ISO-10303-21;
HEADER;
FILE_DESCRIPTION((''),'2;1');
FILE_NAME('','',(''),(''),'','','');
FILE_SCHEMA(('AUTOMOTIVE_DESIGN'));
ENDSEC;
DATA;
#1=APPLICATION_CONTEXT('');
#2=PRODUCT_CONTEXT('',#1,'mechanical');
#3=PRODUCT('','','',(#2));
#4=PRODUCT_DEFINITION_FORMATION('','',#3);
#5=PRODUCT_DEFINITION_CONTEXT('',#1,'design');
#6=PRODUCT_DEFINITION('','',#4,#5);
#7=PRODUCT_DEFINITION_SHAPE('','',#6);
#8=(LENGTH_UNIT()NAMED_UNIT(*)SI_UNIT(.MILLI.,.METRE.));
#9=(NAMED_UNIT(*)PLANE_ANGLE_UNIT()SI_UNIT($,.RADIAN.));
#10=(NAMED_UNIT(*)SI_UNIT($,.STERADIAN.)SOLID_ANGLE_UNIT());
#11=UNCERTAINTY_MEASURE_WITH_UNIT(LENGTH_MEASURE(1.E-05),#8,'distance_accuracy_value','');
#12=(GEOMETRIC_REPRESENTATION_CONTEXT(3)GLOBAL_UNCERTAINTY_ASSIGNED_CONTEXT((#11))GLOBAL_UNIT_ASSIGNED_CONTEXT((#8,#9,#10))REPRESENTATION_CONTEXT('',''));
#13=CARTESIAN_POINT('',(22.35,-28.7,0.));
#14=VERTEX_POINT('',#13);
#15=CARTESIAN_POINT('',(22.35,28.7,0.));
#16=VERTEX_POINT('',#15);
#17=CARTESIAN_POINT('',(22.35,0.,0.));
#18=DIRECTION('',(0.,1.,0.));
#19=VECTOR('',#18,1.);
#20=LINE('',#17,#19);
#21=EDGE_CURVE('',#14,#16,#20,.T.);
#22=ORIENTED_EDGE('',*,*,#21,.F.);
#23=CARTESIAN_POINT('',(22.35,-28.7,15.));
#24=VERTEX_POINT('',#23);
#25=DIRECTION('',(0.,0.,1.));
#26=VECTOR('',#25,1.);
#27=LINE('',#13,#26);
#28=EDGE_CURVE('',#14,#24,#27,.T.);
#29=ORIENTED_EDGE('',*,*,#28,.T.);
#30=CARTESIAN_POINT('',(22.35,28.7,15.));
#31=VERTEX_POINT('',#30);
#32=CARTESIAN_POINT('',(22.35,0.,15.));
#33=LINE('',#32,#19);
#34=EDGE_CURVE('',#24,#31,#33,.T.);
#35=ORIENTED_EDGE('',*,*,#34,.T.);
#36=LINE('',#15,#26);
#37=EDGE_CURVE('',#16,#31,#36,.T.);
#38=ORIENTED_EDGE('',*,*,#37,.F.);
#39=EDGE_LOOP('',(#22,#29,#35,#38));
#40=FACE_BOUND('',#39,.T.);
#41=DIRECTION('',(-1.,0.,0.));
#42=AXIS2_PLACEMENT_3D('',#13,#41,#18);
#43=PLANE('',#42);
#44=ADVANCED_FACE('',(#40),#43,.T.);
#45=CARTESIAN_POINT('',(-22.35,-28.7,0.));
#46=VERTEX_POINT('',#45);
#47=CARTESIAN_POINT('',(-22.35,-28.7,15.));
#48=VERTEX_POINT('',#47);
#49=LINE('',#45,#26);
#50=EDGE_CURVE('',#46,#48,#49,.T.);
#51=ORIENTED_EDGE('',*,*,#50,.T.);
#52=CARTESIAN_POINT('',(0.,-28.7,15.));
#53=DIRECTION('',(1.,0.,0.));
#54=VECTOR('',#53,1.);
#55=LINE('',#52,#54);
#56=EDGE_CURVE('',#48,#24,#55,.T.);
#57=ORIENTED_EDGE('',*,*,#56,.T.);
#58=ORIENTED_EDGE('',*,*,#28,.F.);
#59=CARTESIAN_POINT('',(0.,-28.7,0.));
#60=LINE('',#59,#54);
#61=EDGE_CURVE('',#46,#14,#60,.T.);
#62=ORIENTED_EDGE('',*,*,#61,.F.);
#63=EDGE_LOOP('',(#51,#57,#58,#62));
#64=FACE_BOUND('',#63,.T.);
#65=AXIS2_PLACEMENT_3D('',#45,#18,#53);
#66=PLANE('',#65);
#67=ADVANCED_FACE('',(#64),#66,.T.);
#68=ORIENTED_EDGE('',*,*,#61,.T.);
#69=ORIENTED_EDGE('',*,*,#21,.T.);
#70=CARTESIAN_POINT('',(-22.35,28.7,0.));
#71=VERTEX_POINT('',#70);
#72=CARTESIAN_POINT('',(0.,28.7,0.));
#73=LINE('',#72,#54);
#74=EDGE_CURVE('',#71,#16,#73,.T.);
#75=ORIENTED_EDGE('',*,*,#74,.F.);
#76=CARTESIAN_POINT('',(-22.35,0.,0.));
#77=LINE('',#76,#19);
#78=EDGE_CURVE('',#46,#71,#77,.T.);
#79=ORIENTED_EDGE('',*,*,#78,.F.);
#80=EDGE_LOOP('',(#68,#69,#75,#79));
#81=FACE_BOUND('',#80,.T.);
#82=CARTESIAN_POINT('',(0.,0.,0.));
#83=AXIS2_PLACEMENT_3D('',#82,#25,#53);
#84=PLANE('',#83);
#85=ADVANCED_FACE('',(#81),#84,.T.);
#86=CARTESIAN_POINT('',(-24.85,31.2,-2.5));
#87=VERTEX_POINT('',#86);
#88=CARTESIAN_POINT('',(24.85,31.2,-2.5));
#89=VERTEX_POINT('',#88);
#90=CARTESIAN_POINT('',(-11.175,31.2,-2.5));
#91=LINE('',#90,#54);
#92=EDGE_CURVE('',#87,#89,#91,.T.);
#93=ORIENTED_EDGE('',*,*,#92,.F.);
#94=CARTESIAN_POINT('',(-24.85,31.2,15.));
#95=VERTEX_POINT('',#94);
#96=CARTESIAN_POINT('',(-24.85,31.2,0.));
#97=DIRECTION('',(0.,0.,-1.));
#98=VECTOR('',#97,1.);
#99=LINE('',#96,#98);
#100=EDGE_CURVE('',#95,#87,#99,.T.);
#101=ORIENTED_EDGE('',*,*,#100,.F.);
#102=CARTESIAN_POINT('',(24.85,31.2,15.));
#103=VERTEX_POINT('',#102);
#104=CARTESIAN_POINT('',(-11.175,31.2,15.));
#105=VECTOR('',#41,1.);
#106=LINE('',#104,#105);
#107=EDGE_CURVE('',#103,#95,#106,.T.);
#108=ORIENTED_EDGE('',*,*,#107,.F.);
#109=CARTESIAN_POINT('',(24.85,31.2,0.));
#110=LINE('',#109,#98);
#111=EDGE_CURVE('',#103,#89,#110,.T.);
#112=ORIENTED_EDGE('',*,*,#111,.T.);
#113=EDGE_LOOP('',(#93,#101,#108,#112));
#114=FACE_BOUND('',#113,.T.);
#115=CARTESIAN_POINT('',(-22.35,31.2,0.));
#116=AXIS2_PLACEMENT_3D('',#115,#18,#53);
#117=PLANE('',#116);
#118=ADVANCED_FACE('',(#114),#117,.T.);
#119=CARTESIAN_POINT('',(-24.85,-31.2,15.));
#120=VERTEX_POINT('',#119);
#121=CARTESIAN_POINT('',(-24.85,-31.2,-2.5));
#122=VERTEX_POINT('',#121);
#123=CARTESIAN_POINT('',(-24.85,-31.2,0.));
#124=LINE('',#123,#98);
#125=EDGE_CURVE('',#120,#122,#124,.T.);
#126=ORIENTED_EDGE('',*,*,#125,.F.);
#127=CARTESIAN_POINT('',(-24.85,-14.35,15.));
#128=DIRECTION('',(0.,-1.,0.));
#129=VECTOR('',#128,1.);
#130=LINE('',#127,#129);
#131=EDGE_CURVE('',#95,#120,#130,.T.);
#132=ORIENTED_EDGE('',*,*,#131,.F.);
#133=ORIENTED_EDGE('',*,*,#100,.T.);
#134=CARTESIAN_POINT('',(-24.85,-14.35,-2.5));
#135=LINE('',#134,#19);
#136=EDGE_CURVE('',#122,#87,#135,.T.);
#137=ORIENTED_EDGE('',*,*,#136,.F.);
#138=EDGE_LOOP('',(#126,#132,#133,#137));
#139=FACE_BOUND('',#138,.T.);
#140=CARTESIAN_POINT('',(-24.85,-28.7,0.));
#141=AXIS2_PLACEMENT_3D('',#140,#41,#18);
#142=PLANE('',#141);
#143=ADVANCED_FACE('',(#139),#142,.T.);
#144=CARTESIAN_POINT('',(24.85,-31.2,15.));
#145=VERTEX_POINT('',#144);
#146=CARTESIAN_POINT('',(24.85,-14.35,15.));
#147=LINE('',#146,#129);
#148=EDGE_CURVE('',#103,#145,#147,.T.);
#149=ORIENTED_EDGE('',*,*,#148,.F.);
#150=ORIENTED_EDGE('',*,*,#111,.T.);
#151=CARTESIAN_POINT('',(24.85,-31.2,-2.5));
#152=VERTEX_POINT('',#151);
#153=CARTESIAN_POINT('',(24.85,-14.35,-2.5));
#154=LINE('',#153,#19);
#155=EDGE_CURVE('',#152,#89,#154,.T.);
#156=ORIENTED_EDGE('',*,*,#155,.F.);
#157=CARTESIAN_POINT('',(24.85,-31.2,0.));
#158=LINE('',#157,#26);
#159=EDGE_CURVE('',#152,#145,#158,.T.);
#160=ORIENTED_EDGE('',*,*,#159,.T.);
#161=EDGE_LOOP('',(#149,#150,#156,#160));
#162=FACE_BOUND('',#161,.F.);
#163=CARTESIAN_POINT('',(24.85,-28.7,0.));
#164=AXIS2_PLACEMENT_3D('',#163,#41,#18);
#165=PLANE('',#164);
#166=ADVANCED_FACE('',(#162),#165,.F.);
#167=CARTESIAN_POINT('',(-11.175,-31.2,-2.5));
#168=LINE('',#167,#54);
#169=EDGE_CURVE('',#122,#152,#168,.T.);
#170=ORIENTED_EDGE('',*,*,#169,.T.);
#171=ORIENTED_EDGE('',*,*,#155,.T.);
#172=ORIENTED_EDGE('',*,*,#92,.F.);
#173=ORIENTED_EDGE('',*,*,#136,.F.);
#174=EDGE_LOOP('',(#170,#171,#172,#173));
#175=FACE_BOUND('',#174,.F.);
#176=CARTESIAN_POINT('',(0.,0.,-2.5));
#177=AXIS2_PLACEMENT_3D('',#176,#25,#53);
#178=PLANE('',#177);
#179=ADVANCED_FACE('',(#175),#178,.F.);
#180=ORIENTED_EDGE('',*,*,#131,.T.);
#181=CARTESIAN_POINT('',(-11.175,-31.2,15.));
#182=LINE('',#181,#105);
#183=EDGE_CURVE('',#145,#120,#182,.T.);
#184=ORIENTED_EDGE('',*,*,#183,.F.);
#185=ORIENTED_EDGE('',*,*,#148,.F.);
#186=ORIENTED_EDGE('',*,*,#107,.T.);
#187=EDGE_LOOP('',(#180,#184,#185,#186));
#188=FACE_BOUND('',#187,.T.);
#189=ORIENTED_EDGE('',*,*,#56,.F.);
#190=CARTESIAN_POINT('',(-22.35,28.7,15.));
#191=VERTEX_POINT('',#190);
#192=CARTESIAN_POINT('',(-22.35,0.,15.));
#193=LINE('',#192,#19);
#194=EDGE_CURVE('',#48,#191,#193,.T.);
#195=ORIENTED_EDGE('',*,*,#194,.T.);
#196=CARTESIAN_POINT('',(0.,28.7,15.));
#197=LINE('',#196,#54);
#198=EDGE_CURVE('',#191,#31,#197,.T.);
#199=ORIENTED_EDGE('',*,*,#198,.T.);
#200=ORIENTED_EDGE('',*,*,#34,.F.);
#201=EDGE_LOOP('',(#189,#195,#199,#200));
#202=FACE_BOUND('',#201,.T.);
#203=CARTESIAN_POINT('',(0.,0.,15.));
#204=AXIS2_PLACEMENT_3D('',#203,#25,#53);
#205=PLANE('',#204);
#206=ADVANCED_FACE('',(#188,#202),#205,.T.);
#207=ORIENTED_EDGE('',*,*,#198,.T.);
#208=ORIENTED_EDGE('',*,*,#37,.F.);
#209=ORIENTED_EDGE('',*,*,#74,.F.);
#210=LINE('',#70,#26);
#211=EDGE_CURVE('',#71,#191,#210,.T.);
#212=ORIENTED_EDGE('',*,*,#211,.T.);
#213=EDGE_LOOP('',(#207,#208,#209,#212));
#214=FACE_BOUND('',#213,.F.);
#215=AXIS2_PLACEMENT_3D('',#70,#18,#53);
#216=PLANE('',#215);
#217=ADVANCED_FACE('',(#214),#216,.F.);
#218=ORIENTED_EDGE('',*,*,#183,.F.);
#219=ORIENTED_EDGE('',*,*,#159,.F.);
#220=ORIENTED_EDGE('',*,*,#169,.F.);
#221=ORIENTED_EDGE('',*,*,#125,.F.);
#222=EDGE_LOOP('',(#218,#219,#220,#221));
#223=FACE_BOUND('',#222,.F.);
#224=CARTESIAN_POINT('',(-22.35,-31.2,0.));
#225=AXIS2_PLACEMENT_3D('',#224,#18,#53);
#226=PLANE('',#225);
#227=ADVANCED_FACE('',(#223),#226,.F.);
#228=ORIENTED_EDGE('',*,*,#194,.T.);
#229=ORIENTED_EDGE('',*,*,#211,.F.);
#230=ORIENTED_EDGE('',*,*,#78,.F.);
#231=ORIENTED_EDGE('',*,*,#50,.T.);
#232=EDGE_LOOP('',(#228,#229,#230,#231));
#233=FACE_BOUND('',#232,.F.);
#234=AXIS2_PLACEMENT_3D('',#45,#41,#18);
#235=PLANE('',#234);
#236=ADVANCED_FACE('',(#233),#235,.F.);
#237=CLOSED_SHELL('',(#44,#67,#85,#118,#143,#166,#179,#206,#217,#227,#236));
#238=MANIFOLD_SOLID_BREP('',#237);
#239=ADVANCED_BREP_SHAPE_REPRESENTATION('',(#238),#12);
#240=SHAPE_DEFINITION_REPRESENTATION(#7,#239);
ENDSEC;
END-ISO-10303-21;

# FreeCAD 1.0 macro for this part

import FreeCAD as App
import Part
import Sketcher

V = App.Vector


def faces_at(feature, points):
    """Names of the faces that lie closest to the given points."""
    faces = feature.Shape.Faces
    near = lambda p: min(range(len(faces)), key=lambda i: faces[i].distToShape(Part.Vertex(*p))[0])
    return sorted({f"Face{near(p) + 1}" for p in points})


def add_polygon(sketch, points):
    """Adds a closed chain of lines whose ends are joined by coincident constraints."""
    first, n = sketch.GeometryCount, len(points)
    for a, b in zip(points, points[1:] + points[:1]):
        sketch.addGeometry(Part.LineSegment(App.Vector(*a, 0), App.Vector(*b, 0)), False)
    for i in range(n):
        sketch.addConstraint(Sketcher.Constraint("Coincident", first + i, 2, first + (i + 1) % n, 1))

doc = App.newDocument("Part")
body = doc.addObject("PartDesign::Body", "Body")

# Sketch on XY plane
sketch1 = doc.addObject("Sketcher::SketchObject", "Sketch")
body.addObject(sketch1)
sketch1.AttachmentSupport = (doc.XY_Plane, [""])
sketch1.MapMode = "FlatFace"
add_polygon(sketch1, [(-22.35, 28.7), (-22.35, -28.7), (22.35, -28.7), (22.35, 28.7)])  # lines 0-3
sketch1.addConstraint([
    Sketcher.Constraint("Vertical", 0),
    Sketcher.Constraint("Horizontal", 1),
    Sketcher.Constraint("Vertical", 2),
    Sketcher.Constraint("Horizontal", 3),
    Sketcher.Constraint("Symmetric", 0, 2, 2, 2, -1, 1),
    Sketcher.Constraint("DistanceX", 1, 1, 1, 2, 44.7),
    Sketcher.Constraint("DistanceY", 0, 2, 0, 1, 57.4),
])
pad1 = doc.addObject("PartDesign::Pad", "Pad")
body.addObject(pad1)
pad1.Profile = sketch1
pad1.Length = 15
doc.recompute()

thickness = doc.addObject("PartDesign::Thickness", "Thickness")
body.addObject(thickness)
thickness.Base = (pad1, faces_at(pad1, [(0, 0, 15)]))
thickness.Value = 2.5
thickness.Reversed = False
thickness.Join = "Intersection"

doc.recompute()
